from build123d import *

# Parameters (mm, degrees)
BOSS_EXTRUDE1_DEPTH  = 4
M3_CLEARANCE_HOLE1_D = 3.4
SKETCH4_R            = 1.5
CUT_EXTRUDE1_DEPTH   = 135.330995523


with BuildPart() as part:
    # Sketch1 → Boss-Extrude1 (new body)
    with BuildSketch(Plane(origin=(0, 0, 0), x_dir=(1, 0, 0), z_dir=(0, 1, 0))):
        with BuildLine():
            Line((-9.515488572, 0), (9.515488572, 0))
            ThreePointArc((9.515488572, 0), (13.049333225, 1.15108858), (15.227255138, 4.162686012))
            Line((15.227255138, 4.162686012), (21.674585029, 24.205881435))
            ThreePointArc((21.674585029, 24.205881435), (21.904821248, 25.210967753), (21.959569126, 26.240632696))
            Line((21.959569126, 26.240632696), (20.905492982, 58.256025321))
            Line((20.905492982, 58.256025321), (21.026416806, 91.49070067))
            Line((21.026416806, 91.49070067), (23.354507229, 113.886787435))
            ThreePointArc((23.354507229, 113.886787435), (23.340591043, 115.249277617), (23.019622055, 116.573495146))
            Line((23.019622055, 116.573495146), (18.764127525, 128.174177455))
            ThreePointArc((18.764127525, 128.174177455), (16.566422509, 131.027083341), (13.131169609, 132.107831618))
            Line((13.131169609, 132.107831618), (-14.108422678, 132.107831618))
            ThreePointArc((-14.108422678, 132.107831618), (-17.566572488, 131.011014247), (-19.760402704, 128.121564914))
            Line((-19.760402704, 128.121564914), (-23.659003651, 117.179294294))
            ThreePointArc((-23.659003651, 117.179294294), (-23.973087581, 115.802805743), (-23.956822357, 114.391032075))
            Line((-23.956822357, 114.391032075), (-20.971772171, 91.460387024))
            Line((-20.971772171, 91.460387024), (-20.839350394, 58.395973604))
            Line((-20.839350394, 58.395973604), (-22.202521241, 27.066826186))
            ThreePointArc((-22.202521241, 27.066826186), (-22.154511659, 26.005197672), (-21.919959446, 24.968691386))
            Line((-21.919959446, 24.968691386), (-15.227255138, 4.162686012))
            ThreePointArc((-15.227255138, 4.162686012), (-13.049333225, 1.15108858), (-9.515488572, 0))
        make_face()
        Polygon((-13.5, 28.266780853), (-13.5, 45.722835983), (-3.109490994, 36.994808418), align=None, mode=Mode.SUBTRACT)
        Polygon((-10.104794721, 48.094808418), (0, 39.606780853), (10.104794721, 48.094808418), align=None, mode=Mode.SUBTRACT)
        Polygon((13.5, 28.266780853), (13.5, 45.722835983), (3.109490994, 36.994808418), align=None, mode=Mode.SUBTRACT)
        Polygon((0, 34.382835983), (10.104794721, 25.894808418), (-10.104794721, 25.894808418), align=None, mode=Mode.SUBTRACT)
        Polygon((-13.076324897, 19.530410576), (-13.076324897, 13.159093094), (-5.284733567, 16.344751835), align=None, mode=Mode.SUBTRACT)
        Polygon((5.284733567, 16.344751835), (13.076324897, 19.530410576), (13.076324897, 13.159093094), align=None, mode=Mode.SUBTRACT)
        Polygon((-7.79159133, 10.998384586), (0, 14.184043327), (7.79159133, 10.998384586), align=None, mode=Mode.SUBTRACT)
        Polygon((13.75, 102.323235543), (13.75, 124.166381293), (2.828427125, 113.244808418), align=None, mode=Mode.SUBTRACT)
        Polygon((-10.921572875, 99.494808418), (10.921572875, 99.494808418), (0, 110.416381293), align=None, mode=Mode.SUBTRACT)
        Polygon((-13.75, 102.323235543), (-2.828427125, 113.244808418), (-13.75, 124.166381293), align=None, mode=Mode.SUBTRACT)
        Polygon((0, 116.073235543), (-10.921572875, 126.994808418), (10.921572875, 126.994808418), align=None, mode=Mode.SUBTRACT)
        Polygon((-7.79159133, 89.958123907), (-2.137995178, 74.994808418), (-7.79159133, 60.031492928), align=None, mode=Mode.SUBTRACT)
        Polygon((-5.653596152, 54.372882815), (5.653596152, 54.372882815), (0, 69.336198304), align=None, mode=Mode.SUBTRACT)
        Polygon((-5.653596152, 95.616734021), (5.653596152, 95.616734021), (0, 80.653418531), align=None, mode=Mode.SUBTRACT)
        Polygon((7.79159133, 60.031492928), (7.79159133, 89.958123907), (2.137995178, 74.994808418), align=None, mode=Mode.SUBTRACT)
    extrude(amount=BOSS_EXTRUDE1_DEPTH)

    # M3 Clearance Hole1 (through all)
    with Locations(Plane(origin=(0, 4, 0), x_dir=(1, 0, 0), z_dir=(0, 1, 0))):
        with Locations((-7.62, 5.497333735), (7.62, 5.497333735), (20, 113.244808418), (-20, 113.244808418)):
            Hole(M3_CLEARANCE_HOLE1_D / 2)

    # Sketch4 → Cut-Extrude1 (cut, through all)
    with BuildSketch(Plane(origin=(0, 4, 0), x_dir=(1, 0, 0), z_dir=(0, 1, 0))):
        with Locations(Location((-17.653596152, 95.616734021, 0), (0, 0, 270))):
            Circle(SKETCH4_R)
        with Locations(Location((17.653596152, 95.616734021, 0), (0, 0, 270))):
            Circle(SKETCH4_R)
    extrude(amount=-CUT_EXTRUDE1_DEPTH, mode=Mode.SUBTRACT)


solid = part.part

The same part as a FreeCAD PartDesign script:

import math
import FreeCAD as App
import Part
import Sketcher
from FreeCAD import Vector


def add_polygon(sketch, points):
    """Adds a closed chain of lines whose ends are joined by coincident constraints."""
    first, n = sketch.GeometryCount, len(points)
    for a, b in zip(points, points[1:] + points[:1]):
        sketch.addGeometry(Part.LineSegment(App.Vector(*a, 0), App.Vector(*b, 0)), False)
    for i in range(n):
        sketch.addConstraint(Sketcher.Constraint("Coincident", first + i, 2, first + (i + 1) % n, 1))

doc = App.newDocument("Part")
params = doc.addObject("Spreadsheet::Sheet", "Params")
for row, (alias, value) in enumerate([
    ("sketch1_radius", "6 mm"),
    ("pad1_length", "4 mm"),
    ("sketch2_diameter", "3.4 mm"),
    ("hole_diameter", "3.4 mm"),
    ("sketch3_diameter", "3 mm"),
], start=1):
    params.set(f"A{row}", alias)
    params.set(f"B{row}", "=" + value)
    params.setAlias(f"B{row}", alias)

body = doc.addObject("PartDesign::Body", "Body")

# Sketch on XZ plane
sketch1 = body.newObject("Sketcher::SketchObject", "Sketch")
sketch1.AttachmentSupport = (doc.getObject("XZ_Plane"), [""])
sketch1.MapMode = "FlatFace"
sketch1.addGeometry(Part.LineSegment(Vector(-9.515489, 0, 0), Vector(9.515489, 0, 0)), False)  # 0
sketch1.addGeometry(Part.ArcOfCircle(Part.Circle(Vector(9.515489, -6, 0), Vector(0, 0, 1), 6), math.radians(17.831517), math.radians(90)), False)  # 1
sketch1.addGeometry(Part.LineSegment(Vector(15.227255, -4.162686, 0), Vector(21.674585, -24.205881, 0)), False)  # 2
sketch1.addGeometry(Part.ArcOfCircle(Part.Circle(Vector(15.962818, -26.043195, 0), Vector(0, 0, 1), 6), math.radians(-1.885727), math.radians(17.831517)), False)  # 3
sketch1.addGeometry(Part.LineSegment(Vector(21.959569, -26.240633, 0), Vector(20.905493, -58.256025, 0)), False)  # 4
sketch1.addGeometry(Part.LineSegment(Vector(20.905493, -58.256025, 0), Vector(21.026417, -91.490701, 0)), False)  # 5
sketch1.addGeometry(Part.LineSegment(Vector(21.026417, -91.490701, 0), Vector(23.354507, -113.886787, 0)), False)  # 6
sketch1.addGeometry(Part.ArcOfCircle(Part.Circle(Vector(17.386664, -114.507149, 0), Vector(0, 0, 1), 6), math.radians(-20.144623), math.radians(5.934626)), False)  # 7
sketch1.addGeometry(Part.LineSegment(Vector(23.019622, -116.573495, 0), Vector(18.764128, -128.174177, 0)), False)  # 8
sketch1.addGeometry(Part.ArcOfCircle(Part.Circle(Vector(13.13117, -126.107832, 0), Vector(0, 0, 1), 6), math.radians(-90), math.radians(-20.144623)), False)  # 9
sketch1.addGeometry(Part.LineSegment(Vector(13.13117, -132.107832, 0), Vector(-14.108423, -132.107832, 0)), False)  # 10
sketch1.addGeometry(Part.ArcOfCircle(Part.Circle(Vector(-14.108423, -126.107832, 0), Vector(0, 0, 1), 6), math.radians(-160.389621), math.radians(-90)), False)  # 11
sketch1.addGeometry(Part.LineSegment(Vector(-19.760403, -128.121565, 0), Vector(-23.659004, -117.179294, 0)), False)  # 12
sketch1.addGeometry(Part.ArcOfCircle(Part.Circle(Vector(-18.007024, -115.165561, 0), Vector(0, 0, 1), 6), math.radians(172.583097), math.radians(199.610379)), False)  # 13
sketch1.addGeometry(Part.LineSegment(Vector(-23.956822, -114.391032, 0), Vector(-20.971772, -91.460387, 0)), False)  # 14
sketch1.addGeometry(Part.LineSegment(Vector(-20.971772, -91.460387, 0), Vector(-20.83935, -58.395974, 0)), False)  # 15
sketch1.addGeometry(Part.LineSegment(Vector(-20.83935, -58.395974, 0), Vector(-22.202521, -27.066826, 0)), False)  # 16
sketch1.addGeometry(Part.ArcOfCircle(Part.Circle(Vector(-16.208193, -26.806005, 0), Vector(0, 0, 1), 6), math.radians(162.168483), math.radians(182.49144)), False)  # 17
sketch1.addGeometry(Part.LineSegment(Vector(-21.919959, -24.968691, 0), Vector(-15.227255, -4.162686, 0)), False)  # 18
sketch1.addGeometry(Part.ArcOfCircle(Part.Circle(Vector(-9.515489, -6, 0), Vector(0, 0, 1), 6), math.radians(90), math.radians(162.168483)), False)  # 19
add_polygon(sketch1, [(-13.076325, -13.159093), (-13.076325, -19.530411), (-5.284734, -16.344752)])  # lines 20-22
add_polygon(sketch1, [(-3.109491, -36.994808), (-13.5, -28.266781), (-13.5, -45.722836)])  # lines 23-25
add_polygon(sketch1, [(7.791591, -10.998385), (-7.791591, -10.998385), (0, -14.184043)])  # lines 26-28
add_polygon(sketch1, [(-10.104795, -25.894808), (0, -34.382836), (10.104795, -25.894808)])  # lines 29-31
add_polygon(sketch1, [(13.076325, -13.159093), (5.284734, -16.344752), (13.076325, -19.530411)])  # lines 32-34
add_polygon(sketch1, [(13.5, -45.722836), (13.5, -28.266781), (3.109491, -36.994808)])  # lines 35-37
add_polygon(sketch1, [(0, -39.606781), (-10.104795, -48.094808), (10.104795, -48.094808)])  # lines 38-40
add_polygon(sketch1, [(5.653596, -54.372883), (-5.653596, -54.372883), (0, -69.336198)])  # lines 41-43
add_polygon(sketch1, [(-7.791591, -60.031493), (-7.791591, -89.958124), (-2.137995, -74.994808)])  # lines 44-46
add_polygon(sketch1, [(-2.828427, -113.244808), (-13.75, -102.323236), (-13.75, -124.166381)])  # lines 47-49
add_polygon(sketch1, [(7.791591, -89.958124), (7.791591, -60.031493), (2.137995, -74.994808)])  # lines 50-52
add_polygon(sketch1, [(0, -80.653419), (-5.653596, -95.616734), (5.653596, -95.616734)])  # lines 53-55
add_polygon(sketch1, [(10.921573, -99.494808), (-10.921573, -99.494808), (0, -110.416381)])  # lines 56-58
add_polygon(sketch1, [(10.921573, -126.994808), (0, -116.073236), (-10.921573, -126.994808)])  # lines 59-61
add_polygon(sketch1, [(13.75, -124.166381), (13.75, -102.323236), (2.828427, -113.244808)])  # lines 62-64
sketch1.addConstraint([
    Sketcher.Constraint("Tangent", 0, 2, 1, 2),
    Sketcher.Constraint("Tangent", 1, 1, 2, 1),
    Sketcher.Constraint("Tangent", 2, 2, 3, 2),
    Sketcher.Constraint("Tangent", 3, 1, 4, 1),
    Sketcher.Constraint("Coincident", 4, 2, 5, 1),
    Sketcher.Constraint("Coincident", 5, 2, 6, 1),
    Sketcher.Constraint("Tangent", 6, 2, 7, 2),
    Sketcher.Constraint("Tangent", 7, 1, 8, 1),
    Sketcher.Constraint("Tangent", 8, 2, 9, 2),
    Sketcher.Constraint("Tangent", 9, 1, 10, 1),
    Sketcher.Constraint("Tangent", 10, 2, 11, 2),
    Sketcher.Constraint("Tangent", 11, 1, 12, 1),
    Sketcher.Constraint("Tangent", 12, 2, 13, 2),
    Sketcher.Constraint("Tangent", 13, 1, 14, 1),
    Sketcher.Constraint("Coincident", 14, 2, 15, 1),
    Sketcher.Constraint("Coincident", 15, 2, 16, 1),
    Sketcher.Constraint("Tangent", 16, 2, 17, 2),
    Sketcher.Constraint("Tangent", 17, 1, 18, 1),
    Sketcher.Constraint("Tangent", 18, 2, 19, 2),
    Sketcher.Constraint("Tangent", 19, 1, 0, 1),
    Sketcher.Constraint("Horizontal", 0),
    Sketcher.Constraint("Horizontal", 10),
    Sketcher.Constraint("Vertical", 20),
    Sketcher.Constraint("Vertical", 24),
    Sketcher.Constraint("Horizontal", 26),
    Sketcher.Constraint("Horizontal", 31),
    Sketcher.Constraint("Vertical", 34),
    Sketcher.Constraint("Vertical", 35),
    Sketcher.Constraint("Horizontal", 39),
    Sketcher.Constraint("Horizontal", 41),
    Sketcher.Constraint("Vertical", 44),
    Sketcher.Constraint("Vertical", 48),
    Sketcher.Constraint("Vertical", 50),
    Sketcher.Constraint("Horizontal", 54),
    Sketcher.Constraint("Horizontal", 56),
    Sketcher.Constraint("Horizontal", 61),
    Sketcher.Constraint("Vertical", 62),
    Sketcher.Constraint("Equal", 1, 3),
    Sketcher.Constraint("Equal", 3, 7),
    Sketcher.Constraint("Equal", 7, 9),
    Sketcher.Constraint("Equal", 9, 11),
    Sketcher.Constraint("Equal", 11, 13),
    Sketcher.Constraint("Equal", 13, 17),
    Sketcher.Constraint("Equal", 17, 19),
    Sketcher.Constraint("Symmetric", 0, 2, 19, 1, -1, 1),
    Sketcher.Constraint("Symmetric", 21, 2, 32, 2, -2),
    Sketcher.Constraint("Symmetric", 20, 2, 33, 2, -2),
    Sketcher.Constraint("Symmetric", 23, 2, 35, 2, -2),
    Sketcher.Constraint("Symmetric", 25, 2, 36, 2, -2),
    Sketcher.Constraint("Symmetric", 46, 2, 50, 2, -2),
    Sketcher.Constraint("Symmetric", 45, 2, 51, 2, -2),
    Sketcher.Constraint("Symmetric", 47, 2, 62, 2, -2),
    Sketcher.Constraint("Symmetric", 49, 2, 63, 2, -2),
    Sketcher.Constraint("PointOnObject", 27, 2, -2),
    Sketcher.Constraint("PointOnObject", 29, 2, -2),
    Sketcher.Constraint("PointOnObject", 40, 2, -2),
    Sketcher.Constraint("PointOnObject", 42, 2, -2),
    Sketcher.Constraint("PointOnObject", 55, 2, -2),
    Sketcher.Constraint("PointOnObject", 57, 2, -2),
    Sketcher.Constraint("PointOnObject", 59, 2, -2),
    Sketcher.Constraint("Parallel", 22, 27),
    Sketcher.Constraint("Parallel", 21, 28),
    Sketcher.Constraint("Parallel", 23, 29),
    Sketcher.Constraint("Parallel", 25, 30),
    Sketcher.Constraint("Parallel", 28, 32),
    Sketcher.Constraint("Parallel", 27, 33),
    Sketcher.Constraint("Parallel", 30, 36),
    Sketcher.Constraint("Parallel", 29, 37),
    Sketcher.Constraint("Parallel", 36, 38),
    Sketcher.Constraint("Parallel", 37, 40),
    Sketcher.Constraint("Parallel", 43, 45),
    Sketcher.Constraint("Parallel", 42, 46),
    Sketcher.Constraint("Perpendicular", 47, 49),
    Sketcher.Constraint("Parallel", 45, 51),
    Sketcher.Constraint("Parallel", 46, 52),
    Sketcher.Constraint("Parallel", 51, 53),
    Sketcher.Constraint("Parallel", 52, 55),
    Sketcher.Constraint("Perpendicular", 49, 57),
    Sketcher.Constraint("Perpendicular", 57, 58),
    Sketcher.Constraint("Perpendicular", 58, 59),
    Sketcher.Constraint("Perpendicular", 59, 60),
    Sketcher.Constraint("Parallel", 60, 63),
    Sketcher.Constraint("Perpendicular", 63, 64),
    Sketcher.Constraint("Horizontal", 1, 1, 18, 2),
    Sketcher.Constraint("Vertical", 31, 2, 38, 2),
    Sketcher.Constraint("Vertical", 26, 2, 44, 2),
    Sketcher.Constraint("Vertical", 41, 2, 53, 2),
    Sketcher.Constraint("Vertical", 56, 2, 60, 2),
    Sketcher.Constraint("Equal", 61, 48),
    Sketcher.Constraint("Equal", 22, 27),
    Sketcher.Constraint("Equal", 43, 45),
    Sketcher.Constraint("Radius", 1, 6.0),
    Sketcher.Constraint("DistanceX", 23, 2, -1, 1, 13.5),
    Sketcher.Constraint("DistanceX", 47, 2, -1, 1, 13.75),
    Sketcher.Constraint("DistanceX", 31, 2, 31, 1, 20.209589),
    Sketcher.Constraint("DistanceY", 44, 2, 44, 1, 29.926631),
    Sketcher.Constraint("DistanceY", 5, 2, -1, 1, 91.490701),
    Sketcher.Constraint("DistanceY", 42, 2, -1, 1, 69.336198),
    Sketcher.Constraint("Distance", 4, 32.03274),
    Sketcher.Constraint("Distance", 8, 12.35658),
    Sketcher.Constraint("Distance", 12, 11.61604),
    Sketcher.Constraint("Distance", 14, 23.124122),
    Sketcher.Constraint("Distance", 15, 33.064679),
    Sketcher.Constraint("Distance", 16, 31.35879),
    Sketcher.Constraint("Distance", 18, 21.855941),
    Sketcher.Constraint("Distance", 21, 8.417679),
    Sketcher.Constraint("Distance", 23, 13.569862),
    Sketcher.Constraint("Distance", 42, 15.995748),
    Sketcher.Constraint("DistanceX", 0, 1, 0, 2, 19.030977),
    Sketcher.Constraint("DistanceX", 10, 2, 10, 1, 27.239592),
    Sketcher.Constraint("DistanceX", 26, 2, 26, 1, 15.583183),
    Sketcher.Constraint("DistanceX", 56, 2, 56, 1, 21.843146),
    Sketcher.Constraint("DistanceY", 24, 2, 24, 1, 17.456055),
    Sketcher.Constraint("DistanceX", -1, 1, 3, 3, 15.962818),
    Sketcher.Constraint("DistanceY", 7, 3, -1, 1, 114.507149),
    Sketcher.Constraint("DistanceX", -1, 1, 9, 3, 13.13117),
    Sketcher.Constraint("DistanceY", 9, 3, -1, 1, 126.107832),
    Sketcher.Constraint("DistanceY", 13, 3, -1, 1, 115.165561),
    Sketcher.Constraint("DistanceY", 2, 2, -1, 1, 24.205881),
    Sketcher.Constraint("DistanceX", -1, 1, 3, 1, 21.959569),
    Sketcher.Constraint("DistanceX", 15, 2, -1, 1, 20.83935),
    Sketcher.Constraint("DistanceY", 20, 2, -1, 1, 19.530411),
    Sketcher.Constraint("DistanceY", 23, 2, -1, 1, 28.266781),
    Sketcher.Constraint("DistanceY", 30, 2, -1, 1, 25.894808),
    Sketcher.Constraint("DistanceY", 38, 2, -1, 1, 48.094808),
    Sketcher.Constraint("DistanceY", 45, 2, -1, 1, 74.994808),
    Sketcher.Constraint("DistanceY", 48, 2, -1, 1, 124.166381),
    Sketcher.Constraint("DistanceY", 55, 2, -1, 1, 80.653419),
    Sketcher.Constraint("DistanceY", 56, 2, -1, 1, 99.494808),
    Sketcher.Constraint("DistanceY", 60, 2, -1, 1, 126.994808),
    Sketcher.Constraint("Distance", 6, 22.516765),
    Sketcher.Constraint("DistanceX", 20, 2, -1, 1, 13.076325),
    Sketcher.Constraint("DistanceY", 26, 2, -1, 1, 10.998385),
])
sketch1.setExpression("Constraints[136]", "Params.sketch1_radius")
pad1 = body.newObject("PartDesign::Pad", "Pad")
pad1.Profile = sketch1
pad1.setExpression("Length", "Params.pad1_length")
pad1.Reversed = True

# Sketch on XZ plane
sketch2 = body.newObject("Sketcher::SketchObject", "Sketch001")
sketch2.AttachmentSupport = (doc.getObject("XZ_Plane"), [""])
sketch2.MapMode = "FlatFace"
sketch2.AttachmentOffset = App.Placement(Vector(0, 0, -4), App.Rotation())
sketch2.addGeometry([
    Part.Circle(Vector(-7.6, -5.5, 0), Vector(0, 0, 1), 1.7),
    Part.Circle(Vector(7.6, -5.5, 0), Vector(0, 0, 1), 1.7),
    Part.Circle(Vector(20, -113.2, 0), Vector(0, 0, 1), 1.7),
    Part.Circle(Vector(-20, -113.2, 0), Vector(0, 0, 1), 1.7),
], False)
sketch2.addConstraint([
    Sketcher.Constraint("Equal", 0, 1),
    Sketcher.Constraint("Equal", 1, 2),
    Sketcher.Constraint("Equal", 2, 3),
    Sketcher.Constraint("Symmetric", 0, 3, 1, 3, -2),
    Sketcher.Constraint("Symmetric", 2, 3, 3, 3, -2),
    Sketcher.Constraint("Diameter", 0, 3.4),
    Sketcher.Constraint("DistanceX", -1, 1, 2, 3, 20.0),
    Sketcher.Constraint("DistanceX", 0, 3, -1, 1, 7.62),
    Sketcher.Constraint("DistanceY", 2, 3, -1, 1, 113.244808),
    Sketcher.Constraint("DistanceY", 0, 3, -1, 1, 5.497334),
])
sketch2.setExpression("Constraints[5]", "Params.sketch2_diameter")
doc.recompute()
hole = body.newObject("PartDesign::Hole", "Hole")
hole.Profile = sketch2
hole.ThreadType = "None"
hole.setExpression("Diameter", "Params.hole_diameter")
hole.DepthType = "ThroughAll"
hole.Reversed = True

# Sketch on XZ plane
sketch3 = body.newObject("Sketcher::SketchObject", "Sketch002")
sketch3.AttachmentSupport = (doc.getObject("XZ_Plane"), [""])
sketch3.MapMode = "FlatFace"
sketch3.AttachmentOffset = App.Placement(Vector(0, 0, -4), App.Rotation())
sketch3.addGeometry([
    Part.Circle(Vector(-17.7, -95.6, 0), Vector(0, 0, 1), 1.5),
    Part.Circle(Vector(17.7, -95.6, 0), Vector(0, 0, 1), 1.5),
], False)
sketch3.addConstraint([
    Sketcher.Constraint("Equal", 0, 1),
    Sketcher.Constraint("Symmetric", 0, 3, 1, 3, -2),
    Sketcher.Constraint("Diameter", 0, 3.0),
    Sketcher.Constraint("DistanceX", 0, 3, -1, 1, 17.653596),
    Sketcher.Constraint("DistanceY", 0, 3, -1, 1, 95.616734),
])
sketch3.setExpression("Constraints[2]", "Params.sketch3_diameter")
pocket1 = body.newObject("PartDesign::Pocket", "Pocket")
pocket1.Profile = sketch3
pocket1.Type = "ThroughAll"
pocket1.Reversed = True

doc.recompute()
